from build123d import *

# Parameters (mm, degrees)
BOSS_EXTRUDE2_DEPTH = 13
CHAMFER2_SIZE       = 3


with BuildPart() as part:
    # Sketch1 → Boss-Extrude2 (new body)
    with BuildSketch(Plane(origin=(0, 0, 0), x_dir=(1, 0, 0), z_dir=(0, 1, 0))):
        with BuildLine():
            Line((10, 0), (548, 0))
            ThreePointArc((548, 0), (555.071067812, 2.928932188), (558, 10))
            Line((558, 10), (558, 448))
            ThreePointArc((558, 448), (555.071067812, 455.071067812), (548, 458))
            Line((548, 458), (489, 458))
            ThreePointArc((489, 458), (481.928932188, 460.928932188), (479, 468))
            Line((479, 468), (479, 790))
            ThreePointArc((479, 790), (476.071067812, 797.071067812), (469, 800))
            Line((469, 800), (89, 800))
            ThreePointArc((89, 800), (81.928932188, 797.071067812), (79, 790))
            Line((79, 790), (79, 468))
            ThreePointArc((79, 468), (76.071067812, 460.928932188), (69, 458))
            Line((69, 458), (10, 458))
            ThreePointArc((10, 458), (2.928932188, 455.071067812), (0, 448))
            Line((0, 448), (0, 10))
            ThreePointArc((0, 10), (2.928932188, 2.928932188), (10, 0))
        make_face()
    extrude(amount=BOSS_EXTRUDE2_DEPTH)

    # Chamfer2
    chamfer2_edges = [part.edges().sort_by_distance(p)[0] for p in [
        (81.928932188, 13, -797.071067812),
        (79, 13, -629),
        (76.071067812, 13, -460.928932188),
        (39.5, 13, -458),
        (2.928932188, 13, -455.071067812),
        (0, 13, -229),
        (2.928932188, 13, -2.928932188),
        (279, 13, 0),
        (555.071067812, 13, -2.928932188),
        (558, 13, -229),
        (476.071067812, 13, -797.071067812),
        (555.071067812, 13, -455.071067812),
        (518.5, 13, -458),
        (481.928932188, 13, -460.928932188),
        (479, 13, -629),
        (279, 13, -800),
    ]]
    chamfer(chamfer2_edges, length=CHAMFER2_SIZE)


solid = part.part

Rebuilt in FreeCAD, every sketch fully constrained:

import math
import FreeCAD as App
import Part
import Sketcher

V = App.Vector
Q = App.Units.Quantity


def edges_at(feature, points):
    """Names of the edges that pass closest to the given points."""
    edges = feature.Shape.Edges
    near = lambda p: min(range(len(edges)), key=lambda i: edges[i].distToShape(Part.Vertex(*p))[0])
    return sorted({f"Edge{near(p) + 1}" for p in points})

doc = App.newDocument("Part")
body = doc.addObject("PartDesign::Body", "Body")

sketch1 = body.newObject("Sketcher::SketchObject", "Sketch")
sketch1.AttachmentSupport = (doc.getObject("XZ_Plane"), [""])
sketch1.MapMode = "FlatFace"
sketch1.addGeometry([
    Part.LineSegment(V(10, 0, 0), V(548, 0, 0)),
    Part.ArcOfCircle(Part.Circle(V(548, -10, 0), V(0, 0, 1), 10), math.radians(0), math.radians(90)),
    Part.LineSegment(V(558, -10, 0), V(558, -448, 0)),
    Part.ArcOfCircle(Part.Circle(V(548, -448, 0), V(0, 0, 1), 10), math.radians(-90), math.radians(0)),
    Part.LineSegment(V(548, -458, 0), V(489, -458, 0)),
    Part.ArcOfCircle(Part.Circle(V(489, -468, 0), V(0, 0, 1), 10), math.radians(90), math.radians(180)),
    Part.LineSegment(V(479, -468, 0), V(479, -790, 0)),
    Part.ArcOfCircle(Part.Circle(V(469, -790, 0), V(0, 0, 1), 10), math.radians(-90), math.radians(0)),
    Part.LineSegment(V(469, -800, 0), V(89, -800, 0)),
    Part.ArcOfCircle(Part.Circle(V(89, -790, 0), V(0, 0, 1), 10), math.radians(180), math.radians(270)),
    Part.LineSegment(V(79, -790, 0), V(79, -468, 0)),
    Part.ArcOfCircle(Part.Circle(V(69, -468, 0), V(0, 0, 1), 10), math.radians(0), math.radians(90)),
    Part.LineSegment(V(69, -458, 0), V(10, -458, 0)),
    Part.ArcOfCircle(Part.Circle(V(10, -448, 0), V(0, 0, 1), 10), math.radians(180), math.radians(270)),
    Part.LineSegment(V(0, -448, 0), V(0, -10, 0)),
    Part.ArcOfCircle(Part.Circle(V(10, -10, 0), V(0, 0, 1), 10), math.radians(90), math.radians(180)),
], False)
sketch1.addConstraint([
    Sketcher.Constraint("Tangent", 0, 2, 1, 2),
    Sketcher.Constraint("Tangent", 1, 1, 2, 1),
    Sketcher.Constraint("Tangent", 2, 2, 3, 2),
    Sketcher.Constraint("Tangent", 3, 1, 4, 1),
    Sketcher.Constraint("Tangent", 4, 2, 5, 1),
    Sketcher.Constraint("Tangent", 5, 2, 6, 1),
    Sketcher.Constraint("Tangent", 6, 2, 7, 2),
    Sketcher.Constraint("Tangent", 7, 1, 8, 1),
    Sketcher.Constraint("Tangent", 8, 2, 9, 2),
    Sketcher.Constraint("Tangent", 9, 1, 10, 1),
    Sketcher.Constraint("Tangent", 10, 2, 11, 1),
    Sketcher.Constraint("Tangent", 11, 2, 12, 1),
    Sketcher.Constraint("Tangent", 12, 2, 13, 2),
    Sketcher.Constraint("Tangent", 13, 1, 14, 1),
    Sketcher.Constraint("Tangent", 14, 2, 15, 2),
    Sketcher.Constraint("Tangent", 15, 1, 0, 1),
    Sketcher.Constraint("Horizontal", 0),
    Sketcher.Constraint("Vertical", 2),
    Sketcher.Constraint("Horizontal", 4),
    Sketcher.Constraint("Vertical", 6),
    Sketcher.Constraint("Horizontal", 8),
    Sketcher.Constraint("Vertical", 10),
    Sketcher.Constraint("Horizontal", 12),
    Sketcher.Constraint("Vertical", 14),
    Sketcher.Constraint("Equal", 1, 3),
    Sketcher.Constraint("Equal", 3, 5),
    Sketcher.Constraint("Equal", 5, 7),
    Sketcher.Constraint("Equal", 7, 9),
    Sketcher.Constraint("Equal", 9, 11),
    Sketcher.Constraint("Equal", 11, 13),
    Sketcher.Constraint("Equal", 13, 15),
    Sketcher.Constraint("PointOnObject", 0, 2, -1),
    Sketcher.Constraint("PointOnObject", 13, 1, -2),
    Sketcher.Constraint("Horizontal", 5, 3, 11, 3),
    Sketcher.Constraint("Equal", 4, 12),
    Sketcher.Constraint("Radius", 1, Q("10 mm")),
    Sketcher.Constraint("DistanceX", 0, 1, 0, 2, Q("538 mm")),
    Sketcher.Constraint("DistanceX", 4, 2, 4, 1, Q("59 mm")),
    Sketcher.Constraint("DistanceY", 2, 2, 2, 1, Q("438 mm")),
    Sketcher.Constraint("DistanceY", 6, 2, 6, 1, Q("322 mm")),
])
pad1 = body.newObject("PartDesign::Pad", "Pad")
pad1.Profile = sketch1
pad1.Length = 13
pad1.Reversed = True
doc.recompute()

chamfer = body.newObject("PartDesign::Chamfer", "Chamfer")
chamfer.Base = (pad1, edges_at(pad1, [
    (81.929, 13, -797.071),
    (79, 13, -629),
    (76.071, 13, -460.929),
    (39.5, 13, -458),
    (2.929, 13, -455.071),
    (0, 13, -229),
    (2.929, 13, -2.929),
    (279, 13, 0),
    (555.071, 13, -2.929),
    (558, 13, -229),
    (476.071, 13, -797.071),
    (555.071, 13, -455.071),
    (518.5, 13, -458),
    (481.929, 13, -460.929),
    (479, 13, -629),
    (279, 13, -800),
]))
chamfer.Size = 3

doc.recompute()
